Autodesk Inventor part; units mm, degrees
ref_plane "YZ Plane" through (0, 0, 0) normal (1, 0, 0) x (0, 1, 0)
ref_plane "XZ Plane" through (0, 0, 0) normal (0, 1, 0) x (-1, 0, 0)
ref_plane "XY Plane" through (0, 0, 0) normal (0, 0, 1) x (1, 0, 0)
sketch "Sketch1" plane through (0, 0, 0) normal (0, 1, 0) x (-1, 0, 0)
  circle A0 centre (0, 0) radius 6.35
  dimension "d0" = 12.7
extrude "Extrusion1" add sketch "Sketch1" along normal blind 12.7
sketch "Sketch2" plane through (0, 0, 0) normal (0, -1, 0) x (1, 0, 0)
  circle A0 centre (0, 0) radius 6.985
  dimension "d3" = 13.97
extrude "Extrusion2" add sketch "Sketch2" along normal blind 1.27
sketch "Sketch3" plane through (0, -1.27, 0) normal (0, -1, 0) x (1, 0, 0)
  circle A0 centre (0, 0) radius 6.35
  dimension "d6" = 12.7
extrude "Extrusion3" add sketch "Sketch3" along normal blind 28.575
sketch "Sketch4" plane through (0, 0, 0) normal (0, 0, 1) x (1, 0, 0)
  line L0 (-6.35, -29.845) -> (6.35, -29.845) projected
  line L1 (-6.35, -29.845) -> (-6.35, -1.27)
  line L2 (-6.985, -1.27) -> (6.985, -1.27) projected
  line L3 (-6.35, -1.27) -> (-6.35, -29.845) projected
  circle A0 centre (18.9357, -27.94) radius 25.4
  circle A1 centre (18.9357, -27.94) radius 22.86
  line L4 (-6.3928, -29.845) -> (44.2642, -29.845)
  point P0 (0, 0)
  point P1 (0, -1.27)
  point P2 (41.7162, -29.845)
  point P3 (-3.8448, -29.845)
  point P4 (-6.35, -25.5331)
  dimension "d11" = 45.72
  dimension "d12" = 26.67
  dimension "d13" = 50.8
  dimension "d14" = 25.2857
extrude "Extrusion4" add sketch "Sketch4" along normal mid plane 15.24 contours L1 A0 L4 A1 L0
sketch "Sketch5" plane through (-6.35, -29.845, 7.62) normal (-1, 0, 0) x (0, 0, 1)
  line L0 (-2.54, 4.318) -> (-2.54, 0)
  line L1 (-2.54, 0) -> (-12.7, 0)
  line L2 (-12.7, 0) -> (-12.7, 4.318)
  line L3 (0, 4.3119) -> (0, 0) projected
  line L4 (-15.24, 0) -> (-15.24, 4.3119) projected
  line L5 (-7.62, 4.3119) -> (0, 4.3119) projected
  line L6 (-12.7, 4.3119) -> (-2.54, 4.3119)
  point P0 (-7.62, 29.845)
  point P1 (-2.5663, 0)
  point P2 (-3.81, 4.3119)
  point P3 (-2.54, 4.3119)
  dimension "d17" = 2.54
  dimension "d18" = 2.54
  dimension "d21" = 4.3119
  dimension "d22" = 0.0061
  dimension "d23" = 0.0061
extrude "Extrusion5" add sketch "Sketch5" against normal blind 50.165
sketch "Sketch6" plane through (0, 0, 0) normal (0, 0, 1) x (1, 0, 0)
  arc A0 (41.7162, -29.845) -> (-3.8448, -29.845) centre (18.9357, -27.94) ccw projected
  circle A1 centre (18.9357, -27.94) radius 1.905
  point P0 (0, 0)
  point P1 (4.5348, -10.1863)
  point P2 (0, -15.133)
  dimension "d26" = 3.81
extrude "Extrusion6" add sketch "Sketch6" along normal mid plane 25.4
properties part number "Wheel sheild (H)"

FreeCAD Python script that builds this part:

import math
import FreeCAD as App
import Part
import Sketcher

V = App.Vector
Q = App.Units.Quantity


def add_polygon(sketch, points):
    """Adds a closed chain of lines whose ends are joined by coincident constraints."""
    first, n = sketch.GeometryCount, len(points)
    for a, b in zip(points, points[1:] + points[:1]):
        sketch.addGeometry(Part.LineSegment(App.Vector(*a, 0), App.Vector(*b, 0)), False)
    for i in range(n):
        sketch.addConstraint(Sketcher.Constraint("Coincident", first + i, 2, first + (i + 1) % n, 1))

doc = App.newDocument("Part")
body = doc.addObject("PartDesign::Body", "Body")

sketch1 = body.newObject("Sketcher::SketchObject", "Sketch")
sketch1.AttachmentSupport = (doc.getObject("XZ_Plane"), [""])
sketch1.MapMode = "FlatFace"
sketch1.addGeometry(Part.Circle(V(0, 0, 0), V(0, 0, 1), 6), False)
sketch1.addConstraint([
    Sketcher.Constraint("Coincident", 0, 3, -1, 1),
    Sketcher.Constraint("Diameter", 0, Q("0.5 in")),
])
pad1 = body.newObject("PartDesign::Pad", "Pad")
pad1.Profile = sketch1
pad1.Length = Q("0.5 in")
pad1.Reversed = True

sketch2 = body.newObject("Sketcher::SketchObject", "Sketch001")
sketch2.AttachmentSupport = (doc.getObject("XZ_Plane"), [""])
sketch2.MapMode = "FlatFace"
sketch2.addGeometry(Part.Circle(V(0, 0, 0), V(0, 0, 1), 7), False)
sketch2.addConstraint([
    Sketcher.Constraint("Coincident", 0, 3, -1, 1),
    Sketcher.Constraint("Diameter", 0, Q("0.55 in")),
])
pad2 = body.newObject("PartDesign::Pad", "Pad001")
pad2.Profile = sketch2
pad2.Length = Q("0.05 in")

sketch3 = body.newObject("Sketcher::SketchObject", "Sketch002")
sketch3.AttachmentSupport = (doc.getObject("XZ_Plane"), [""])
sketch3.MapMode = "FlatFace"
sketch3.AttachmentOffset = App.Placement(V(0, 0, 0.05 * 25.4), App.Rotation())
sketch3.addGeometry(Part.Circle(V(0, 0, 0), V(0, 0, 1), 6), False)
sketch3.addConstraint([
    Sketcher.Constraint("Coincident", 0, 3, -1, 1),
    Sketcher.Constraint("Diameter", 0, Q("0.5 in")),
])
pad3 = body.newObject("PartDesign::Pad", "Pad002")
pad3.Profile = sketch3
pad3.Length = Q("1.125 in")

sketch4 = body.newObject("Sketcher::SketchObject", "Sketch003")
sketch4.AttachmentSupport = (doc.getObject("XY_Plane"), [""])
sketch4.MapMode = "FlatFace"
sketch4.addGeometry([
    Part.LineSegment(V(-6.3, -25.5, 0), V(-6.3, -29.8, 0)),
    Part.LineSegment(V(-6.3, -29.8, 0), V(-3.8, -29.8, 0)),
    Part.ArcOfCircle(Part.Circle(V(18.9, -27.9, 0), V(0, 0, 1), 22.9), math.radians(-5), math.radians(185)),
    Part.LineSegment(V(41.7, -29.8, 0), V(44.3, -29.8, 0)),
    Part.ArcOfCircle(Part.Circle(V(18.9, -27.9, 0), V(0, 0, 1), 25.4), math.radians(-4), math.radians(175)),
], False)
sketch4.addConstraint([
    Sketcher.Constraint("Coincident", 0, 2, 1, 1),
    Sketcher.Constraint("Coincident", 1, 2, 2, 2),
    Sketcher.Constraint("Coincident", 2, 1, 3, 1),
    Sketcher.Constraint("Coincident", 3, 2, 4, 1),
    Sketcher.Constraint("Coincident", 4, 2, 0, 1),
    Sketcher.Constraint("Vertical", 0),
    Sketcher.Constraint("Horizontal", 1),
    Sketcher.Constraint("Horizontal", 3),
    Sketcher.Constraint("Coincident", 4, 3, 2, 3),
    Sketcher.Constraint("Horizontal", 1, 2, 2, 1),
    Sketcher.Constraint("Radius", 4, Q("1 in")),
    Sketcher.Constraint("Radius", 2, Q("0.9 in")),
    Sketcher.Constraint("DistanceY", 2, 3, -1, 1, Q("1.1 in")),
    Sketcher.Constraint("DistanceX", 0, 2, 2, 3, Q("0.9955 in")),
    Sketcher.Constraint("DistanceX", 0, 2, -1, 1, Q("0.25 in")),
    Sketcher.Constraint("DistanceY", 0, 2, -1, 1, Q("1.175 in")),
])
pad4 = body.newObject("PartDesign::Pad", "Pad003")
pad4.Profile = sketch4
pad4.Length = Q("0.6 in")
pad4.Midplane = True

sketch5 = body.newObject("Sketcher::SketchObject", "Sketch004")
sketch5.AttachmentSupport = (doc.getObject("YZ_Plane"), [""])
sketch5.MapMode = "FlatFace"
sketch5.AttachmentOffset = App.Placement(V(0, 0, -0.25 * 25.4), App.Rotation())
add_polygon(sketch5, [(-29.8, 5.1), (-25.5, 5.1), (-25.5, -5.1), (-29.8, -5.1)])
sketch5.addConstraint([
    Sketcher.Constraint("Horizontal", 0),
    Sketcher.Constraint("Vertical", 1),
    Sketcher.Constraint("Horizontal", 2),
    Sketcher.Constraint("Vertical", 3),
    Sketcher.Constraint("DistanceY", 1, 2, 1, 1, Q("0.4 in")),
    Sketcher.Constraint("DistanceX", 0, 1, 0, 2, Q("4.312 mm")),
    Sketcher.Constraint("DistanceY", -1, 1, 0, 2, Q("0.2 in")),
    Sketcher.Constraint("DistanceX", 2, 2, -1, 1, Q("1.175 in")),
])
pad5 = body.newObject("PartDesign::Pad", "Pad004")
pad5.Profile = sketch5
pad5.Length = Q("1.975 in")

sketch6 = body.newObject("Sketcher::SketchObject", "Sketch005")
sketch6.AttachmentSupport = (doc.getObject("XY_Plane"), [""])
sketch6.MapMode = "FlatFace"
sketch6.addGeometry(Part.Circle(V(18.9, -27.9, 0), V(0, 0, 1), 1.9), False)
sketch6.addConstraint([
    Sketcher.Constraint("Diameter", 0, Q("0.15 in")),
    Sketcher.Constraint("DistanceY", 0, 3, -1, 1, Q("1.1 in")),
    Sketcher.Constraint("DistanceX", -1, 1, 0, 3, Q("0.7455 in")),
])
pad6 = body.newObject("PartDesign::Pad", "Pad005")
pad6.Profile = sketch6
pad6.Length = Q("1 in")
pad6.Midplane = True

doc.recompute()
